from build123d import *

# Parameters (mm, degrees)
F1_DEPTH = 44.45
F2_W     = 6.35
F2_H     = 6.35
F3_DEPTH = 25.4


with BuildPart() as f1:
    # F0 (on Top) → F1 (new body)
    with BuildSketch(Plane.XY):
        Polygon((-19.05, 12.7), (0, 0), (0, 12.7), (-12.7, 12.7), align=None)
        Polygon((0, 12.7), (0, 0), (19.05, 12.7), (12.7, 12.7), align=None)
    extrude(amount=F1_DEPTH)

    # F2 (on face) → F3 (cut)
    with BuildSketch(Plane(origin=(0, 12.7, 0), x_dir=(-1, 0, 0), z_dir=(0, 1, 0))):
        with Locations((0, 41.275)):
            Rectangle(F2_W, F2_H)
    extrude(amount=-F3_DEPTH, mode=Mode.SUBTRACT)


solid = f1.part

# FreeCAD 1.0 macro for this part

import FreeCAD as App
import Part
import Sketcher
Q = App.Units.Quantity

doc = App.newDocument("Part")
body = doc.addObject("PartDesign::Body", "Body")

sketch1 = doc.addObject("Sketcher::SketchObject", "Sketch")
body.addObject(sketch1)
sketch1.AttachmentSupport = (doc.XY_Plane, [""])
sketch1.MapMode = "FlatFace"
sketch1.addGeometry([
    Part.LineSegment(App.Vector(-19, 13, 0), App.Vector(0, 0, 0)),
    Part.LineSegment(App.Vector(0, 0, 0), App.Vector(19, 13, 0)),
    Part.LineSegment(App.Vector(19, 13, 0), App.Vector(-19, 13, 0)),
], False)
sketch1.addConstraint([
    Sketcher.Constraint("Coincident", 0, 2, 1, 1),
    Sketcher.Constraint("Coincident", 1, 2, 2, 1),
    Sketcher.Constraint("Coincident", 2, 2, 0, 1),
    Sketcher.Constraint("Horizontal", 2),
    Sketcher.Constraint("Coincident", 0, 2, -1, 1),
    Sketcher.Constraint("Equal", 0, 1),
    Sketcher.Constraint("DistanceX", 2, 2, 2, 1, Q("1.5 in")),
    Sketcher.Constraint("DistanceY", -1, 1, 1, 2, Q("0.5 in")),
])
pad1 = doc.addObject("PartDesign::Pad", "Pad")
body.addObject(pad1)
pad1.Profile = sketch1
pad1.Length = Q("1.75 in")

sketch2 = doc.addObject("Sketcher::SketchObject", "Sketch001")
body.addObject(sketch2)
sketch2.AttachmentSupport = (doc.XZ_Plane, [""])
sketch2.MapMode = "FlatFace"
sketch2.AttachmentOffset = App.Placement(App.Vector(0, 0, -0.5 * 25.4), App.Rotation())
sketch2.addGeometry([
    Part.LineSegment(App.Vector(3, 44, 0), App.Vector(3, 38, 0)),
    Part.LineSegment(App.Vector(3, 38, 0), App.Vector(-3, 38, 0)),
    Part.LineSegment(App.Vector(-3, 38, 0), App.Vector(-3, 44, 0)),
    Part.LineSegment(App.Vector(-3, 44, 0), App.Vector(3, 44, 0)),
], False)
sketch2.addConstraint([
    Sketcher.Constraint("Coincident", 0, 2, 1, 1),
    Sketcher.Constraint("Coincident", 1, 2, 2, 1),
    Sketcher.Constraint("Coincident", 2, 2, 3, 1),
    Sketcher.Constraint("Coincident", 3, 2, 0, 1),
    Sketcher.Constraint("Vertical", 0),
    Sketcher.Constraint("Horizontal", 1),
    Sketcher.Constraint("Vertical", 2),
    Sketcher.Constraint("Horizontal", 3),
    Sketcher.Constraint("Equal", 3, 0),
    Sketcher.Constraint("DistanceX", 1, 2, 1, 1, Q("0.25 in")),
    Sketcher.Constraint("DistanceY", -1, 1, 0, 2, Q("1.5 in")),
    Sketcher.Constraint("DistanceX", -1, 1, 0, 2, Q("0.125 in")),
])
pocket1 = doc.addObject("PartDesign::Pocket", "Pocket")
body.addObject(pocket1)
pocket1.Profile = sketch2
pocket1.Length = Q("1 in")
pocket1.Reversed = True

doc.recompute()
